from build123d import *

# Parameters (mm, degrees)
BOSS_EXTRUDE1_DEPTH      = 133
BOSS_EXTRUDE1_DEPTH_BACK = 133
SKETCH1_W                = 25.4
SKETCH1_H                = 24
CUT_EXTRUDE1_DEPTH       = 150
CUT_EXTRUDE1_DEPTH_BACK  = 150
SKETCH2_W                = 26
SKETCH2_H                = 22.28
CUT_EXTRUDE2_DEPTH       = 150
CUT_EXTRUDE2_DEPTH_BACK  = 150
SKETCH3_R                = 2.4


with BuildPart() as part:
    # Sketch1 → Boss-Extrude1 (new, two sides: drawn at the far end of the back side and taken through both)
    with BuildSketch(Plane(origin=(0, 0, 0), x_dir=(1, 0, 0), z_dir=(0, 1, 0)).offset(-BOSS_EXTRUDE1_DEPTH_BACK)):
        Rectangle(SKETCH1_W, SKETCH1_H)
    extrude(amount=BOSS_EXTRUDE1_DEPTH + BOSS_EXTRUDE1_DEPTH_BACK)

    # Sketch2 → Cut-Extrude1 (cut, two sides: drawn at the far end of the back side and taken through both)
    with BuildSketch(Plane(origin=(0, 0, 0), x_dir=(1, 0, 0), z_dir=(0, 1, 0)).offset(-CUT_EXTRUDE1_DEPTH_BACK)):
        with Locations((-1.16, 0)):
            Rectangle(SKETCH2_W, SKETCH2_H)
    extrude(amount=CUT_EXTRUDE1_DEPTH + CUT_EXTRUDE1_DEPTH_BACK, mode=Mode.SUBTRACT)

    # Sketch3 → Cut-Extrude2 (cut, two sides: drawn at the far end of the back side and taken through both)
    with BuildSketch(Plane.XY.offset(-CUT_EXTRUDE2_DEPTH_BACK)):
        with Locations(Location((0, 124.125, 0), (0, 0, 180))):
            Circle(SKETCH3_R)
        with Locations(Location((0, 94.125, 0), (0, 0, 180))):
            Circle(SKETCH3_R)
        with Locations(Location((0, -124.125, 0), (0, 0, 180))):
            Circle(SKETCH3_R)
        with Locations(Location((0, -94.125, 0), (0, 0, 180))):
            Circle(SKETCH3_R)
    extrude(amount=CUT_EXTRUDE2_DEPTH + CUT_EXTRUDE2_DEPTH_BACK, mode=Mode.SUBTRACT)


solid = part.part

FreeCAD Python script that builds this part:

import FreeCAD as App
import Part
import Sketcher
from FreeCAD import Vector
Q = App.Units.Quantity

doc = App.newDocument("Part")
body = doc.addObject("PartDesign::Body", "Body")

sketch1 = body.newObject("Sketcher::SketchObject", "Sketch")
sketch1.AttachmentSupport = (doc.getObject("XZ_Plane"), [""])
sketch1.MapMode = "FlatFace"
sketch1.addGeometry([
    Part.LineSegment(Vector(-13, -12, 0), Vector(-13, 12, 0)),
    Part.LineSegment(Vector(-13, 12, 0), Vector(13, 12, 0)),
    Part.LineSegment(Vector(13, 12, 0), Vector(13, -12, 0)),
    Part.LineSegment(Vector(13, -12, 0), Vector(-13, -12, 0)),
], False)
sketch1.addConstraint([
    Sketcher.Constraint("Coincident", 0, 2, 1, 1),
    Sketcher.Constraint("Coincident", 1, 2, 2, 1),
    Sketcher.Constraint("Coincident", 2, 2, 3, 1),
    Sketcher.Constraint("Coincident", 3, 2, 0, 1),
    Sketcher.Constraint("Vertical", 0),
    Sketcher.Constraint("Horizontal", 1),
    Sketcher.Constraint("Vertical", 2),
    Sketcher.Constraint("Horizontal", 3),
    Sketcher.Constraint("Symmetric", 0, 2, 2, 2, -1, 1),
    Sketcher.Constraint("DistanceY", 0, 1, 0, 2, Q("24 mm")),
    Sketcher.Constraint("DistanceX", 1, 1, 1, 2, Q("25.4 mm")),
])
pad1 = body.newObject("PartDesign::Pad", "Pad")
pad1.Profile = sketch1
pad1.Type = "TwoLengths"
pad1.Length = 133
pad1.Length2 = 133
pad1.Reversed = True

sketch2 = body.newObject("Sketcher::SketchObject", "Sketch001")
sketch2.AttachmentSupport = (doc.getObject("XZ_Plane"), [""])
sketch2.MapMode = "FlatFace"
sketch2.addGeometry([
    Part.LineSegment(Vector(-14, -11, 0), Vector(-14, 11, 0)),
    Part.LineSegment(Vector(-14, 11, 0), Vector(12, 11, 0)),
    Part.LineSegment(Vector(12, 11, 0), Vector(12, -11, 0)),
    Part.LineSegment(Vector(12, -11, 0), Vector(-14, -11, 0)),
], False)
sketch2.addConstraint([
    Sketcher.Constraint("Coincident", 0, 2, 1, 1),
    Sketcher.Constraint("Coincident", 1, 2, 2, 1),
    Sketcher.Constraint("Coincident", 2, 2, 3, 1),
    Sketcher.Constraint("Coincident", 3, 2, 0, 1),
    Sketcher.Constraint("Vertical", 0),
    Sketcher.Constraint("Horizontal", 1),
    Sketcher.Constraint("Vertical", 2),
    Sketcher.Constraint("Horizontal", 3),
    Sketcher.Constraint("DistanceX", 1, 1, 1, 2, Q("26 mm")),
    Sketcher.Constraint("DistanceY", 0, 1, 0, 2, Q("22.28 mm")),
    Sketcher.Constraint("DistanceX", 0, 2, -1, 1, Q("14.16 mm")),
    Sketcher.Constraint("DistanceY", -1, 1, 0, 2, Q("11.14 mm")),
])
pocket1 = body.newObject("PartDesign::Pocket", "Pocket")
pocket1.Profile = sketch2
pocket1.Type = "ThroughAll"
pocket1.Midplane = True

sketch3 = body.newObject("Sketcher::SketchObject", "Sketch002")
sketch3.AttachmentSupport = (doc.getObject("XY_Plane"), [""])
sketch3.MapMode = "FlatFace"
sketch3.addGeometry([
    Part.Circle(Vector(0, 124.1, 0), Vector(0, 0, 1), 2.4),
    Part.Circle(Vector(0, 94.1, 0), Vector(0, 0, 1), 2.4),
    Part.Circle(Vector(0, -124.1, 0), Vector(0, 0, 1), 2.4),
    Part.Circle(Vector(0, -94.1, 0), Vector(0, 0, 1), 2.4),
], False)
sketch3.addConstraint([
    Sketcher.Constraint("Equal", 0, 1),
    Sketcher.Constraint("Equal", 1, 2),
    Sketcher.Constraint("Equal", 2, 3),
    Sketcher.Constraint("Symmetric", 0, 3, 2, 3, -1, 1),
    Sketcher.Constraint("Symmetric", 1, 3, 3, 3, -1, 1),
    Sketcher.Constraint("PointOnObject", 0, 3, -2),
    Sketcher.Constraint("PointOnObject", 1, 3, -2),
    Sketcher.Constraint("Diameter", 0, Q("4.8 mm")),
    Sketcher.Constraint("DistanceY", 1, 3, 0, 3, Q("30 mm")),
    Sketcher.Constraint("DistanceY", 2, 3, 1, 3, Q("218.25 mm")),
])
pocket2 = body.newObject("PartDesign::Pocket", "Pocket001")
pocket2.Profile = sketch3
pocket2.Type = "ThroughAll"
pocket2.Midplane = True

doc.recompute()
